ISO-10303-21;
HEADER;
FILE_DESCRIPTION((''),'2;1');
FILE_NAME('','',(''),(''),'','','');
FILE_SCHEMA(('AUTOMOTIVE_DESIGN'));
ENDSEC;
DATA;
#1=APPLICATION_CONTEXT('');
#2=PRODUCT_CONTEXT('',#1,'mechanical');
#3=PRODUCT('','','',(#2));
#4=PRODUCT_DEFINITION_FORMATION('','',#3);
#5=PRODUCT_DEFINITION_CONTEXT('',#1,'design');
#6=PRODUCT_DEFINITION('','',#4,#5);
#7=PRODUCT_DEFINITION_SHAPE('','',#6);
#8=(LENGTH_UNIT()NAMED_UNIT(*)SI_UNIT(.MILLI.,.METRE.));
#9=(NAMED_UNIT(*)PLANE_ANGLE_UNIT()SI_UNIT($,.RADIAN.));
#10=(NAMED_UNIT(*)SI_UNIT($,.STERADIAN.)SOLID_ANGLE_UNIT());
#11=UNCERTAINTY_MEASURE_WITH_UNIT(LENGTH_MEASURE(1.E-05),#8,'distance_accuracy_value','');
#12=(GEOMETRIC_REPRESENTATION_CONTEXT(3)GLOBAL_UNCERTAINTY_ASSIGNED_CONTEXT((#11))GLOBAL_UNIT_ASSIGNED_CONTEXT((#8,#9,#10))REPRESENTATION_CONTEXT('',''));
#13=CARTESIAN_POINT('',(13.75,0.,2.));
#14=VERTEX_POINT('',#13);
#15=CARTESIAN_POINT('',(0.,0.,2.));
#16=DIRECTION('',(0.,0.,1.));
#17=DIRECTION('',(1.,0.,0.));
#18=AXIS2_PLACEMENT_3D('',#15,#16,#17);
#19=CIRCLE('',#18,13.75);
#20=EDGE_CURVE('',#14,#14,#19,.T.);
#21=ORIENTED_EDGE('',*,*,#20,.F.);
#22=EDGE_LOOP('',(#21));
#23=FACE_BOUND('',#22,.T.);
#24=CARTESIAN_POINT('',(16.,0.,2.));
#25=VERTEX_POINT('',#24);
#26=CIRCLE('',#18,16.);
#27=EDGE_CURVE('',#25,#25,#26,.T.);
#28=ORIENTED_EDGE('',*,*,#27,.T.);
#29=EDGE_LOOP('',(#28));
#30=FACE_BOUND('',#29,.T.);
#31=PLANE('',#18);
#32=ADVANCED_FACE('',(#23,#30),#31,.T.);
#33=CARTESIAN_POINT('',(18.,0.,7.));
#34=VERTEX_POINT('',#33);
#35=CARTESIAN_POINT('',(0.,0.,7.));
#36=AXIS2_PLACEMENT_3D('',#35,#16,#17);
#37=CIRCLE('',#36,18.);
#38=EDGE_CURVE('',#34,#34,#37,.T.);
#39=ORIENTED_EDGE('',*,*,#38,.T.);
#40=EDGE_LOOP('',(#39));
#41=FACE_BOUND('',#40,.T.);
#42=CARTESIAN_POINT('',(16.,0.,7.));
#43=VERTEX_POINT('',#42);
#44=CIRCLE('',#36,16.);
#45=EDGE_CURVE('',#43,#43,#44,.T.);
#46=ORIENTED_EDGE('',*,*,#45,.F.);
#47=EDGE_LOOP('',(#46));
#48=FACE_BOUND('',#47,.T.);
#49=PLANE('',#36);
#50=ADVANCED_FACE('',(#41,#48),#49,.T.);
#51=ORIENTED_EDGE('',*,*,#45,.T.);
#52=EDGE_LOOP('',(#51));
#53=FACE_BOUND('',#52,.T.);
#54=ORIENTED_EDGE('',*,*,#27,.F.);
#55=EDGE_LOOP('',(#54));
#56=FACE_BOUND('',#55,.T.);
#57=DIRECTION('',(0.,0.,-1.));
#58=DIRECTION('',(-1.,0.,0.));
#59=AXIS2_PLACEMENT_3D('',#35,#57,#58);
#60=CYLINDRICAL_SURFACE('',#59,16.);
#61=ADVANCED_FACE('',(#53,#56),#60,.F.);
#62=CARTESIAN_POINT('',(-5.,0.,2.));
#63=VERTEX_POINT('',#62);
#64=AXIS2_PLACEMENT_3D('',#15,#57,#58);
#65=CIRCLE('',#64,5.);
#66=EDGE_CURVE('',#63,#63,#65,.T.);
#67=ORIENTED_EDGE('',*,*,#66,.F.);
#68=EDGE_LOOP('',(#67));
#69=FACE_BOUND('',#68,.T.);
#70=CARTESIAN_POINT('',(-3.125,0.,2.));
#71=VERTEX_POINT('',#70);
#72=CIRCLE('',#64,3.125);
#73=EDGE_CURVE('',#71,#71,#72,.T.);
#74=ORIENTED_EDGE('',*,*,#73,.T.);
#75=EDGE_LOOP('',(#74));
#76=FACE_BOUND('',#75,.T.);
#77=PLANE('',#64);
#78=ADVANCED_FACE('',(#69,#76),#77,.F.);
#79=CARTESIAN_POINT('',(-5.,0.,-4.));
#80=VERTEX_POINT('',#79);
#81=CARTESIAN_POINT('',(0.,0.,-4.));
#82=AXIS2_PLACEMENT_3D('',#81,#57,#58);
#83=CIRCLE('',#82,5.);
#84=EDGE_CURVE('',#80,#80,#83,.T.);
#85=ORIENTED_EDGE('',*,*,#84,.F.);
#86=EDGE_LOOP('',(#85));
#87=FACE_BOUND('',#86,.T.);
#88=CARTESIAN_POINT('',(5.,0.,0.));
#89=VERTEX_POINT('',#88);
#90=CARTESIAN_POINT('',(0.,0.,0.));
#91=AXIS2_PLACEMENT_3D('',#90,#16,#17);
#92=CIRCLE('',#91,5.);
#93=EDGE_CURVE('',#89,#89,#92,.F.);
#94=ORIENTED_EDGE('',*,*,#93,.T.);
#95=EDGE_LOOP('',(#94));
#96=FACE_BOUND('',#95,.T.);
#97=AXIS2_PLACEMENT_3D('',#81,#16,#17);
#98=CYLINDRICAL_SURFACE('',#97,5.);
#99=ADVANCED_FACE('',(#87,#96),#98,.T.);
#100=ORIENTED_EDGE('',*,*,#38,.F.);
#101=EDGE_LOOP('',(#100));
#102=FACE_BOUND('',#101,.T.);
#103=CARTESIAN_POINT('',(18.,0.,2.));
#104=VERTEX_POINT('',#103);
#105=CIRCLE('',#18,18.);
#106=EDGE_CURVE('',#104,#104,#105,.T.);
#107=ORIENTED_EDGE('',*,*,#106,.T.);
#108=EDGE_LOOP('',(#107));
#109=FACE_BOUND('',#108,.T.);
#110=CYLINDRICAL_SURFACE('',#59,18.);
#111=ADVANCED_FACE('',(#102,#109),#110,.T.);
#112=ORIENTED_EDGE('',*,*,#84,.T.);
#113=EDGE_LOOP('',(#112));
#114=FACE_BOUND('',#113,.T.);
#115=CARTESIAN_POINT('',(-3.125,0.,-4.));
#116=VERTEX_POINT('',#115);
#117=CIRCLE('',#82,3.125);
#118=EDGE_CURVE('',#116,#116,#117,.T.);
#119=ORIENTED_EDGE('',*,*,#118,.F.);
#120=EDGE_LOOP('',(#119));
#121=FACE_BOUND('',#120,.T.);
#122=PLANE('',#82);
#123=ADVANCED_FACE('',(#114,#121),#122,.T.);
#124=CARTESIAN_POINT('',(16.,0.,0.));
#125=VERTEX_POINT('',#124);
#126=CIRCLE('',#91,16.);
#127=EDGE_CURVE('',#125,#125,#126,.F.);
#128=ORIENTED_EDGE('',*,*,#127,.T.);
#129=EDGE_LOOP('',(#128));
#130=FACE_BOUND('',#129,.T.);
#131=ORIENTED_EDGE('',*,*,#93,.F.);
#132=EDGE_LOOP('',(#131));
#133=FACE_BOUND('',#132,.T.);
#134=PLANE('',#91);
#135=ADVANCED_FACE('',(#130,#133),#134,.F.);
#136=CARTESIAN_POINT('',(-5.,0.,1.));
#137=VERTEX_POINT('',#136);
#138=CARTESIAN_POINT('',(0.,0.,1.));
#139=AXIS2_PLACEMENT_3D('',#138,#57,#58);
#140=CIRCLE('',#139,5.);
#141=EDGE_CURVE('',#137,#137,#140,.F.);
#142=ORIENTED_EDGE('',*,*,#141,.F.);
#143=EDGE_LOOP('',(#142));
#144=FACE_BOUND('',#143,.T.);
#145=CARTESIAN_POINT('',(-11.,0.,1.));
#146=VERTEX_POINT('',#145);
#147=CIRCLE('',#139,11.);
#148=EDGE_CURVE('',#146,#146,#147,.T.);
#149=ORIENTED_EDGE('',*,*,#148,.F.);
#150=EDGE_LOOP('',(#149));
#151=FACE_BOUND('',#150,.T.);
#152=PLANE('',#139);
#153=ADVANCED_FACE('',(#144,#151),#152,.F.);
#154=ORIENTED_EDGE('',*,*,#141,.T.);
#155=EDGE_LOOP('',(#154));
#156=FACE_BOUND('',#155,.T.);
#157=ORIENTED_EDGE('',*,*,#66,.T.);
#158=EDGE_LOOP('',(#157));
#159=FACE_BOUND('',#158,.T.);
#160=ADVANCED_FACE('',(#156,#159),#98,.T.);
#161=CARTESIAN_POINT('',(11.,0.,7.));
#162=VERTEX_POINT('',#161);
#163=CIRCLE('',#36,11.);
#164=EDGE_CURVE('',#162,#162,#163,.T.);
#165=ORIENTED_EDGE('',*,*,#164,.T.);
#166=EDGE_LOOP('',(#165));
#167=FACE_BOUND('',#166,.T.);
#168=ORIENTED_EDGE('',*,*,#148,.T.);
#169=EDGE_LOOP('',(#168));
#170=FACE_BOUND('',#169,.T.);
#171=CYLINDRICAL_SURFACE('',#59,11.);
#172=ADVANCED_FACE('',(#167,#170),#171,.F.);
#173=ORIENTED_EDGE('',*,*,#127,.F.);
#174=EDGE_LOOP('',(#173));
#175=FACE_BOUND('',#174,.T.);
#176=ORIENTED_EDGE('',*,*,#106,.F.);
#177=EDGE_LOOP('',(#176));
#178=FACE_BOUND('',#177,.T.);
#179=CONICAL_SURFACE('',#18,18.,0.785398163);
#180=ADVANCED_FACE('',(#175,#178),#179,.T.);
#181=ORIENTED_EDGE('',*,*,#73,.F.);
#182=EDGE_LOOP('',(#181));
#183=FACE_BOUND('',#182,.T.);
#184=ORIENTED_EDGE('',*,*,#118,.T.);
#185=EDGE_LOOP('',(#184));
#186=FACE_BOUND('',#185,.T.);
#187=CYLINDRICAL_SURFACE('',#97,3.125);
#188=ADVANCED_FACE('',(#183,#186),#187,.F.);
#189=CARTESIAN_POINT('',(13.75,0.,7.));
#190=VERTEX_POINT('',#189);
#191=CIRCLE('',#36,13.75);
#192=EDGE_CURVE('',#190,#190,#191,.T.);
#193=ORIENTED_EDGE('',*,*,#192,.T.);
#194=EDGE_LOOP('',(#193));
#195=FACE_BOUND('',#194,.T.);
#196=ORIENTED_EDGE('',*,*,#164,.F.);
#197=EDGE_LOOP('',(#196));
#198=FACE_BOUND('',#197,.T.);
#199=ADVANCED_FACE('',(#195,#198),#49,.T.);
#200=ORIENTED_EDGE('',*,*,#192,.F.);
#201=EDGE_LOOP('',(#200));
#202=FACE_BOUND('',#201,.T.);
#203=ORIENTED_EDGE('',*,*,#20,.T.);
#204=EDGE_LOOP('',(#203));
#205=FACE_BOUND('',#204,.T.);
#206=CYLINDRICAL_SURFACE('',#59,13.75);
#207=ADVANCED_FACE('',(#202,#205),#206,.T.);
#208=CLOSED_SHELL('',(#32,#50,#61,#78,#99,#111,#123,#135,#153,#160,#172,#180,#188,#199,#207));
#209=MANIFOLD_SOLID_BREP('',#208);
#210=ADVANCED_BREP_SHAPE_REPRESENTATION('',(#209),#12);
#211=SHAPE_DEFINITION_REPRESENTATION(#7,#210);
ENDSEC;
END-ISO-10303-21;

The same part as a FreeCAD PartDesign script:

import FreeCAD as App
import Part
import Sketcher

V = App.Vector


def edges_at(feature, points):
    """Names of the edges that pass closest to the given points."""
    edges = feature.Shape.Edges
    near = lambda p: min(range(len(edges)), key=lambda i: edges[i].distToShape(Part.Vertex(*p))[0])
    return sorted({f"Edge{near(p) + 1}" for p in points})

doc = App.newDocument("Part")
params = doc.addObject("Spreadsheet::Sheet", "Params")
for row, (alias, value) in enumerate([
    ("sketch1_diameter", "36 mm"),
    ("sketch1_diameter2", "32 mm"),
    ("pad1_length", "7 mm"),
    ("sketch2_diameter", "22 mm"),
    ("sketch2_diameter2", "27.5 mm"),
    ("pad2_length", "7 mm"),
    ("sketch3_diameter", "32 mm"),
    ("sketch3_diameter2", "27.5 mm"),
    ("pad3_length", "2 mm"),
    ("chamfer_size", "2 mm"),
    ("sketch4_diameter", "10 mm"),
    ("sketch4_diameter2", "6.25 mm"),
    ("pad4_length", "4 mm"),
    ("pad4_length2", "2 mm"),
    ("sketch5_diameter", "22 mm"),
    ("pad5_length", "1 mm"),
], start=1):
    params.set(f"A{row}", alias)
    params.set(f"B{row}", "=" + value)
    params.setAlias(f"B{row}", alias)

body = doc.addObject("PartDesign::Body", "Body")

# Sketch on XY plane
sketch1 = body.newObject("Sketcher::SketchObject", "Sketch")
sketch1.AttachmentSupport = (doc.getObject("XY_Plane"), [""])
sketch1.MapMode = "FlatFace"
sketch1.addGeometry(Part.Circle(V(0, 0, 0), V(0, 0, 1), 18), False)
sketch1.addGeometry(Part.Circle(V(0, 0, 0), V(0, 0, 1), 16), False)
sketch1.addConstraint(Sketcher.Constraint("Coincident", 0, 3, -1, 1))
sketch1.addConstraint(Sketcher.Constraint("Coincident", 1, 3, -1, 1))
sketch1.addConstraint(Sketcher.Constraint("Diameter", 0, 36.0))
sketch1.addConstraint(Sketcher.Constraint("Diameter", 1, 32.0))
sketch1.setExpression("Constraints[2]", "Params.sketch1_diameter")
sketch1.setExpression("Constraints[3]", "Params.sketch1_diameter2")
pad1 = body.newObject("PartDesign::Pad", "Pad")
pad1.Profile = sketch1
pad1.setExpression("Length", "Params.pad1_length")
body2 = doc.addObject("PartDesign::Body", "Body001")

# Sketch on XY plane
sketch2 = body2.newObject("Sketcher::SketchObject", "Sketch001")
sketch2.AttachmentSupport = (doc.getObject("XY_Plane001"), [""])
sketch2.MapMode = "FlatFace"
sketch2.addGeometry(Part.Circle(V(0, 0, 0), V(0, 0, 1), 14), False)
sketch2.addGeometry(Part.Circle(V(0, 0, 0), V(0, 0, 1), 11), False)
sketch2.addConstraint(Sketcher.Constraint("Coincident", 0, 3, -1, 1))
sketch2.addConstraint(Sketcher.Constraint("Coincident", 1, 3, -1, 1))
sketch2.addConstraint(Sketcher.Constraint("Diameter", 1, 22.0))
sketch2.addConstraint(Sketcher.Constraint("Diameter", 0, 27.5))
sketch2.setExpression("Constraints[2]", "Params.sketch2_diameter")
sketch2.setExpression("Constraints[3]", "Params.sketch2_diameter2")
pad2 = body2.newObject("PartDesign::Pad", "Pad001")
pad2.Profile = sketch2
pad2.setExpression("Length", "Params.pad2_length")
body.AllowCompound = True
doc.recompute()

boolean = body.newObject("PartDesign::Boolean", "Boolean")
boolean.Type = "Fuse"
boolean.addObjects([body2])

# Sketch on XY plane
sketch3 = body.newObject("Sketcher::SketchObject", "Sketch002")
sketch3.AttachmentSupport = (doc.getObject("XY_Plane"), [""])
sketch3.MapMode = "FlatFace"
sketch3.addGeometry(Part.Circle(V(0, 0, 0), V(0, 0, 1), 16), False)
sketch3.addGeometry(Part.Circle(V(0, 0, 0), V(0, 0, 1), 14), False)
sketch3.addConstraint(Sketcher.Constraint("Coincident", 0, 3, -1, 1))
sketch3.addConstraint(Sketcher.Constraint("Coincident", 1, 3, -1, 1))
sketch3.addConstraint(Sketcher.Constraint("Diameter", 0, 32.0))
sketch3.addConstraint(Sketcher.Constraint("Diameter", 1, 27.5))
sketch3.setExpression("Constraints[2]", "Params.sketch3_diameter")
sketch3.setExpression("Constraints[3]", "Params.sketch3_diameter2")
pad3 = body.newObject("PartDesign::Pad", "Pad002")
pad3.Profile = sketch3
pad3.setExpression("Length", "Params.pad3_length")
doc.recompute()

chamfer = body.newObject("PartDesign::Chamfer", "Chamfer")
chamfer.Base = (pad3, edges_at(pad3, [(-18, 0, 0)]))
chamfer.setExpression("Size", "Params.chamfer_size")
body3 = doc.addObject("PartDesign::Body", "Body002")

# Sketch on XY plane
sketch4 = body3.newObject("Sketcher::SketchObject", "Sketch003")
sketch4.AttachmentSupport = (doc.getObject("XY_Plane002"), [""])
sketch4.MapMode = "FlatFace"
sketch4.addGeometry(Part.Circle(V(0, 0, 0), V(0, 0, 1), 5), False)
sketch4.addGeometry(Part.Circle(V(0, 0, 0), V(0, 0, 1), 3.1), False)
sketch4.addConstraint(Sketcher.Constraint("Coincident", 0, 3, -1, 1))
sketch4.addConstraint(Sketcher.Constraint("Coincident", 1, 3, -1, 1))
sketch4.addConstraint(Sketcher.Constraint("Diameter", 0, 10.0))
sketch4.addConstraint(Sketcher.Constraint("Diameter", 1, 6.25))
sketch4.setExpression("Constraints[2]", "Params.sketch4_diameter")
sketch4.setExpression("Constraints[3]", "Params.sketch4_diameter2")
pad4 = body3.newObject("PartDesign::Pad", "Pad003")
pad4.Profile = sketch4
pad4.Type = "TwoLengths"
pad4.setExpression("Length", "Params.pad4_length")
pad4.setExpression("Length2", "Params.pad4_length2")
pad4.Reversed = True
body.AllowCompound = True
doc.recompute()

boolean2 = body.newObject("PartDesign::Boolean", "Boolean001")
boolean2.Type = "Fuse"
boolean2.addObjects([body3])

# Sketch on XY plane
sketch5 = body.newObject("Sketcher::SketchObject", "Sketch004")
sketch5.AttachmentSupport = (doc.getObject("XY_Plane"), [""])
sketch5.MapMode = "FlatFace"
sketch5.addGeometry(Part.Circle(V(0, 0, 0), V(0, 0, 1), 11), False)
sketch5.addGeometry(Part.Circle(V(0, 0, 0), V(0, 0, 1), 3.8), False)
sketch5.addConstraint(Sketcher.Constraint("Coincident", 0, 3, -1, 1))
sketch5.addConstraint(Sketcher.Constraint("Coincident", 1, 3, -1, 1))
sketch5.addConstraint(Sketcher.Constraint("Diameter", 0, 22.0))
sketch5.addConstraint(Sketcher.Constraint("Diameter", 1, 7.669062))
sketch5.setExpression("Constraints[2]", "Params.sketch5_diameter")
pad5 = body.newObject("PartDesign::Pad", "Pad004")
pad5.Profile = sketch5
pad5.setExpression("Length", "Params.pad5_length")

doc.recompute()
